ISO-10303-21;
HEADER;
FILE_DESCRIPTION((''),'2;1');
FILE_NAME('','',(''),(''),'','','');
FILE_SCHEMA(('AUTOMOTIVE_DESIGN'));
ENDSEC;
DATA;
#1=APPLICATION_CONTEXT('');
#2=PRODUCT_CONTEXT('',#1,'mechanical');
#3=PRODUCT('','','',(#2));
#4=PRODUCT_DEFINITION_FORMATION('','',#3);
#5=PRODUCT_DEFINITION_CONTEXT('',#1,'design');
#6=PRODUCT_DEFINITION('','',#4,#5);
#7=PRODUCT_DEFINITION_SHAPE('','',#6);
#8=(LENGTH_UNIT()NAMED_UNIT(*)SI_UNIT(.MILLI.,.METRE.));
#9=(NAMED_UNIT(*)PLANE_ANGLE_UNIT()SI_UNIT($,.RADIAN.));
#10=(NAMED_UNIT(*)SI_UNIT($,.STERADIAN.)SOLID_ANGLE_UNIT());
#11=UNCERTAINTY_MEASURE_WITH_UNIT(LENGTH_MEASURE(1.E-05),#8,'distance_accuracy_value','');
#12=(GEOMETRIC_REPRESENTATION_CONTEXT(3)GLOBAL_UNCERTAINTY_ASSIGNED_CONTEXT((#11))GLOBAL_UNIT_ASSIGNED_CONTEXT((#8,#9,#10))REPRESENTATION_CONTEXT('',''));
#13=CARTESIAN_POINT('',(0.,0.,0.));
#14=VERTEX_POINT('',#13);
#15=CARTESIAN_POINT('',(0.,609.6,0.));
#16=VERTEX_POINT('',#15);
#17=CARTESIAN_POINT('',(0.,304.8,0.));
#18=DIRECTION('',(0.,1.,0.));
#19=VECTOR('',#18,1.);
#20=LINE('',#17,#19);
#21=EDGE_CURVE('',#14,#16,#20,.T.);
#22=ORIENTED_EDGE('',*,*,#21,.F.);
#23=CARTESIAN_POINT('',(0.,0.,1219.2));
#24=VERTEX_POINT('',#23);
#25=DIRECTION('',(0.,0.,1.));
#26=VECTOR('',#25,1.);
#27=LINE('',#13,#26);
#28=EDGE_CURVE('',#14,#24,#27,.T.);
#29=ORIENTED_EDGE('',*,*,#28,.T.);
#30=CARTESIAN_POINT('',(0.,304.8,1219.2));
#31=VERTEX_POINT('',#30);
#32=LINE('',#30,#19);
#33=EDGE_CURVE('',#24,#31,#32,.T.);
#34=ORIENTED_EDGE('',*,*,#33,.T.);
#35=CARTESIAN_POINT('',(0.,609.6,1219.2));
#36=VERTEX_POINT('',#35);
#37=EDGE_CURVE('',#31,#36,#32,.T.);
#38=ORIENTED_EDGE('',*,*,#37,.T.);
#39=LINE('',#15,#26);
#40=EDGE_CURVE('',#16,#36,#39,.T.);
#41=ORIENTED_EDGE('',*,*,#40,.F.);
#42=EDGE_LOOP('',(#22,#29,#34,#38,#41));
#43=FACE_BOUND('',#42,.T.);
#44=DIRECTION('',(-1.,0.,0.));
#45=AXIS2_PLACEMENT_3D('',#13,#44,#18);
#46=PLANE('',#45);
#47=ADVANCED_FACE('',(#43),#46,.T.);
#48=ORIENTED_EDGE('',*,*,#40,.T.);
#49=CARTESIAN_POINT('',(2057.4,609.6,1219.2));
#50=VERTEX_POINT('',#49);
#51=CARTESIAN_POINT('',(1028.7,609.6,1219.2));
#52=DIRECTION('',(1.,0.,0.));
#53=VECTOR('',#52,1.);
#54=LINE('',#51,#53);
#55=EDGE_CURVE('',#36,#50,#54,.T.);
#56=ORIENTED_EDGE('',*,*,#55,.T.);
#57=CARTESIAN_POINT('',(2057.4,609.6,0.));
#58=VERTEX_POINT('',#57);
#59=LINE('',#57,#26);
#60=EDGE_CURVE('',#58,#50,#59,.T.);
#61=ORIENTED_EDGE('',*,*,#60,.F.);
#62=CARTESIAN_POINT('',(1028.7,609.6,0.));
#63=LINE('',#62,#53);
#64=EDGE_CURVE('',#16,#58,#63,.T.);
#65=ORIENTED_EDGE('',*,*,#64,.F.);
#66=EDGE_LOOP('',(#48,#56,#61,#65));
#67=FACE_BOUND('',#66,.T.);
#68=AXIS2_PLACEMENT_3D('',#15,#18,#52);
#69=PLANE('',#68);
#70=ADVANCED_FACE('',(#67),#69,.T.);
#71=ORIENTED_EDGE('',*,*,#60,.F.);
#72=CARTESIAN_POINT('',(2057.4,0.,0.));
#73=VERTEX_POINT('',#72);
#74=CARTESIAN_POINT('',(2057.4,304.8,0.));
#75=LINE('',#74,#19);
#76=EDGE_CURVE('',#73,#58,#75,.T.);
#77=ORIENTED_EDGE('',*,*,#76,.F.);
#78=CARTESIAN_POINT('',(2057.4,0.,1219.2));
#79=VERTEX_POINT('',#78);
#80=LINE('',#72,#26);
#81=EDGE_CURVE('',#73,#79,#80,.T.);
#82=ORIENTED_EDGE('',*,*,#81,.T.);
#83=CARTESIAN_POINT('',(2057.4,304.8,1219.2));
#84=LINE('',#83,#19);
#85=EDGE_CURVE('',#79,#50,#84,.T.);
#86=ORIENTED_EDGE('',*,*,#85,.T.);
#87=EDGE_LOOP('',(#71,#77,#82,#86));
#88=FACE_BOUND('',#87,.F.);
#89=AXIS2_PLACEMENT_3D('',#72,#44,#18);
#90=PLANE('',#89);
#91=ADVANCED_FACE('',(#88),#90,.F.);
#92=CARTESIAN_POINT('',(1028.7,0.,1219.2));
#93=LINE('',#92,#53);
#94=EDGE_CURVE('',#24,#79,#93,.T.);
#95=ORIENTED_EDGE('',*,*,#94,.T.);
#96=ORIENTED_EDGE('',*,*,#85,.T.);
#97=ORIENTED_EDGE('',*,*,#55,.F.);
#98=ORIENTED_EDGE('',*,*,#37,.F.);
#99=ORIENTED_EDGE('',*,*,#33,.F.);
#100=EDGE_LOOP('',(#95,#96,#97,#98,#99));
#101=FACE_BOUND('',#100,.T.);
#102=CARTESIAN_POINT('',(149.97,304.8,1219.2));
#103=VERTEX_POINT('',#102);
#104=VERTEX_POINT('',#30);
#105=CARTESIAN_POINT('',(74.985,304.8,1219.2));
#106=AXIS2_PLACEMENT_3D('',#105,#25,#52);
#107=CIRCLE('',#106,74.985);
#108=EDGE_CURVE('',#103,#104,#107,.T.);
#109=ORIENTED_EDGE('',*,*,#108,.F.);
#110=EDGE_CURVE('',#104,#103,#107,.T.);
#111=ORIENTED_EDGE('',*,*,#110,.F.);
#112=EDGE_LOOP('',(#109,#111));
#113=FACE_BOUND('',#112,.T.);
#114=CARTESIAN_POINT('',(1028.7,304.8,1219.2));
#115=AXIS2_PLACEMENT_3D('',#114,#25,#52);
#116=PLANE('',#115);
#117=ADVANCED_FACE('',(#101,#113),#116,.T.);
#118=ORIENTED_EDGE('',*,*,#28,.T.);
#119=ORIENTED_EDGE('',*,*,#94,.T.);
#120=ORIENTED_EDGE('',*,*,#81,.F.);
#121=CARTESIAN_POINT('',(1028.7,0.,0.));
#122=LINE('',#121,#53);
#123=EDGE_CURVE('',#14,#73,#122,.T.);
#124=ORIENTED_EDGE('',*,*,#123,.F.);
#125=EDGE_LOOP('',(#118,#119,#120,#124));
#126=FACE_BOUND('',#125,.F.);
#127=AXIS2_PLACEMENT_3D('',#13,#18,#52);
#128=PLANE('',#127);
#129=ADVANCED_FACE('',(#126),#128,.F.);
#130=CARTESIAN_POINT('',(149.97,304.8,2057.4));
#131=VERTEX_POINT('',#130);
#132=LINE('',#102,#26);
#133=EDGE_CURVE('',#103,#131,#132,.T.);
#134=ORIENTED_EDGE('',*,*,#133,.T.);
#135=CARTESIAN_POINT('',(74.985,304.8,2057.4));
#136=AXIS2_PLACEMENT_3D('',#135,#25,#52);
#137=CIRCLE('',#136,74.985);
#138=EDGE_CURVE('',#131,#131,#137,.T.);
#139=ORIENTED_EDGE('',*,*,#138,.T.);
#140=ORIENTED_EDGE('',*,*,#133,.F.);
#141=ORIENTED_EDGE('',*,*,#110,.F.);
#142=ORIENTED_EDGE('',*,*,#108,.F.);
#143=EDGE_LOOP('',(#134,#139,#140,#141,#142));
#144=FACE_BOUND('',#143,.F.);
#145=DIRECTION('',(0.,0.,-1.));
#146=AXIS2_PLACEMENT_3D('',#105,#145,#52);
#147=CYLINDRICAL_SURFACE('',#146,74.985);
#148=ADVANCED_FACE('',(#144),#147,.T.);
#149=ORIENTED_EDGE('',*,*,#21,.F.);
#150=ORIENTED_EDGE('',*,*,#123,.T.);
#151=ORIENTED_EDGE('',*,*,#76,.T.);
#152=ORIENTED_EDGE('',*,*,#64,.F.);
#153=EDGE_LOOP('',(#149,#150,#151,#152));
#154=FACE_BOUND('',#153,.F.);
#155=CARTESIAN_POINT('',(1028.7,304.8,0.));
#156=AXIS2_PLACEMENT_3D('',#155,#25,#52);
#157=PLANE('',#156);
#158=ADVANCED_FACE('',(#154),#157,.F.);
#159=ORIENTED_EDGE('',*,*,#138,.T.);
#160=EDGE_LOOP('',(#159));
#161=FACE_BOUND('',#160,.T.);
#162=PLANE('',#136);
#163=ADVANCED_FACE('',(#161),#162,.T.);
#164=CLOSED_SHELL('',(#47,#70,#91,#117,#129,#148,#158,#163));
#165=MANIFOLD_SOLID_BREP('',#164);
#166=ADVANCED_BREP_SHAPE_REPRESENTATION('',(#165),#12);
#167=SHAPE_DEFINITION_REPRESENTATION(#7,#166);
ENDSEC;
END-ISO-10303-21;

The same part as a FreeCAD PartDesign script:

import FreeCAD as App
import Part
import Sketcher

V = App.Vector
Q = App.Units.Quantity

doc = App.newDocument("Part")
body = doc.addObject("PartDesign::Body", "Body")

sketch1 = body.newObject("Sketcher::SketchObject", "Sketch")
sketch1.AttachmentSupport = (doc.getObject("XY_Plane"), [""])
sketch1.MapMode = "FlatFace"
sketch1.addGeometry(Part.LineSegment(V(0, 609.6, 0), V(0, 0, 0)), False)
sketch1.addGeometry(Part.LineSegment(V(0, 0, 0), V(2057.4, 0, 0)), False)
sketch1.addGeometry(Part.LineSegment(V(2057.4, 0, 0), V(2057.4, 609.6, 0)), False)
sketch1.addGeometry(Part.LineSegment(V(2057.4, 609.6, 0), V(0, 609.6, 0)), False)
sketch1.addConstraint(Sketcher.Constraint("Coincident", 0, 2, 1, 1))
sketch1.addConstraint(Sketcher.Constraint("Coincident", 1, 2, 2, 1))
sketch1.addConstraint(Sketcher.Constraint("Coincident", 2, 2, 3, 1))
sketch1.addConstraint(Sketcher.Constraint("Coincident", 3, 2, 0, 1))
sketch1.addConstraint(Sketcher.Constraint("Vertical", 0))
sketch1.addConstraint(Sketcher.Constraint("Horizontal", 1))
sketch1.addConstraint(Sketcher.Constraint("Vertical", 2))
sketch1.addConstraint(Sketcher.Constraint("Horizontal", 3))
sketch1.addConstraint(Sketcher.Constraint("Coincident", 0, 2, -1, 1))
sketch1.addConstraint(Sketcher.Constraint("DistanceX", 1, 1, 1, 2, Q("81 in")))
sketch1.addConstraint(Sketcher.Constraint("DistanceY", 0, 2, 0, 1, Q("24 in")))
pad1 = body.newObject("PartDesign::Pad", "Pad")
pad1.Profile = sketch1
pad1.Length = Q("48 in")

sketch2 = body.newObject("Sketcher::SketchObject", "Sketch001")
sketch2.AttachmentSupport = (doc.getObject("XY_Plane"), [""])
sketch2.MapMode = "FlatFace"
sketch2.AttachmentOffset = App.Placement(V(0, 0, 48 * 25.4), App.Rotation())
sketch2.addGeometry(Part.Circle(V(74.985, 304.8, 0), V(0, 0, 1), 74.985), False)
sketch2.addConstraint(Sketcher.Constraint("DistanceY", -1, 1, 0, 3, Q("12 in")))
sketch2.addConstraint(Sketcher.Constraint("Diameter", 0, 149.97))
sketch2.addConstraint(Sketcher.Constraint("DistanceX", -1, 1, 0, 3, 74.985))
pad2 = body.newObject("PartDesign::Pad", "Pad001")
pad2.Profile = sketch2
pad2.Length = Q("33 in")

doc.recompute()
